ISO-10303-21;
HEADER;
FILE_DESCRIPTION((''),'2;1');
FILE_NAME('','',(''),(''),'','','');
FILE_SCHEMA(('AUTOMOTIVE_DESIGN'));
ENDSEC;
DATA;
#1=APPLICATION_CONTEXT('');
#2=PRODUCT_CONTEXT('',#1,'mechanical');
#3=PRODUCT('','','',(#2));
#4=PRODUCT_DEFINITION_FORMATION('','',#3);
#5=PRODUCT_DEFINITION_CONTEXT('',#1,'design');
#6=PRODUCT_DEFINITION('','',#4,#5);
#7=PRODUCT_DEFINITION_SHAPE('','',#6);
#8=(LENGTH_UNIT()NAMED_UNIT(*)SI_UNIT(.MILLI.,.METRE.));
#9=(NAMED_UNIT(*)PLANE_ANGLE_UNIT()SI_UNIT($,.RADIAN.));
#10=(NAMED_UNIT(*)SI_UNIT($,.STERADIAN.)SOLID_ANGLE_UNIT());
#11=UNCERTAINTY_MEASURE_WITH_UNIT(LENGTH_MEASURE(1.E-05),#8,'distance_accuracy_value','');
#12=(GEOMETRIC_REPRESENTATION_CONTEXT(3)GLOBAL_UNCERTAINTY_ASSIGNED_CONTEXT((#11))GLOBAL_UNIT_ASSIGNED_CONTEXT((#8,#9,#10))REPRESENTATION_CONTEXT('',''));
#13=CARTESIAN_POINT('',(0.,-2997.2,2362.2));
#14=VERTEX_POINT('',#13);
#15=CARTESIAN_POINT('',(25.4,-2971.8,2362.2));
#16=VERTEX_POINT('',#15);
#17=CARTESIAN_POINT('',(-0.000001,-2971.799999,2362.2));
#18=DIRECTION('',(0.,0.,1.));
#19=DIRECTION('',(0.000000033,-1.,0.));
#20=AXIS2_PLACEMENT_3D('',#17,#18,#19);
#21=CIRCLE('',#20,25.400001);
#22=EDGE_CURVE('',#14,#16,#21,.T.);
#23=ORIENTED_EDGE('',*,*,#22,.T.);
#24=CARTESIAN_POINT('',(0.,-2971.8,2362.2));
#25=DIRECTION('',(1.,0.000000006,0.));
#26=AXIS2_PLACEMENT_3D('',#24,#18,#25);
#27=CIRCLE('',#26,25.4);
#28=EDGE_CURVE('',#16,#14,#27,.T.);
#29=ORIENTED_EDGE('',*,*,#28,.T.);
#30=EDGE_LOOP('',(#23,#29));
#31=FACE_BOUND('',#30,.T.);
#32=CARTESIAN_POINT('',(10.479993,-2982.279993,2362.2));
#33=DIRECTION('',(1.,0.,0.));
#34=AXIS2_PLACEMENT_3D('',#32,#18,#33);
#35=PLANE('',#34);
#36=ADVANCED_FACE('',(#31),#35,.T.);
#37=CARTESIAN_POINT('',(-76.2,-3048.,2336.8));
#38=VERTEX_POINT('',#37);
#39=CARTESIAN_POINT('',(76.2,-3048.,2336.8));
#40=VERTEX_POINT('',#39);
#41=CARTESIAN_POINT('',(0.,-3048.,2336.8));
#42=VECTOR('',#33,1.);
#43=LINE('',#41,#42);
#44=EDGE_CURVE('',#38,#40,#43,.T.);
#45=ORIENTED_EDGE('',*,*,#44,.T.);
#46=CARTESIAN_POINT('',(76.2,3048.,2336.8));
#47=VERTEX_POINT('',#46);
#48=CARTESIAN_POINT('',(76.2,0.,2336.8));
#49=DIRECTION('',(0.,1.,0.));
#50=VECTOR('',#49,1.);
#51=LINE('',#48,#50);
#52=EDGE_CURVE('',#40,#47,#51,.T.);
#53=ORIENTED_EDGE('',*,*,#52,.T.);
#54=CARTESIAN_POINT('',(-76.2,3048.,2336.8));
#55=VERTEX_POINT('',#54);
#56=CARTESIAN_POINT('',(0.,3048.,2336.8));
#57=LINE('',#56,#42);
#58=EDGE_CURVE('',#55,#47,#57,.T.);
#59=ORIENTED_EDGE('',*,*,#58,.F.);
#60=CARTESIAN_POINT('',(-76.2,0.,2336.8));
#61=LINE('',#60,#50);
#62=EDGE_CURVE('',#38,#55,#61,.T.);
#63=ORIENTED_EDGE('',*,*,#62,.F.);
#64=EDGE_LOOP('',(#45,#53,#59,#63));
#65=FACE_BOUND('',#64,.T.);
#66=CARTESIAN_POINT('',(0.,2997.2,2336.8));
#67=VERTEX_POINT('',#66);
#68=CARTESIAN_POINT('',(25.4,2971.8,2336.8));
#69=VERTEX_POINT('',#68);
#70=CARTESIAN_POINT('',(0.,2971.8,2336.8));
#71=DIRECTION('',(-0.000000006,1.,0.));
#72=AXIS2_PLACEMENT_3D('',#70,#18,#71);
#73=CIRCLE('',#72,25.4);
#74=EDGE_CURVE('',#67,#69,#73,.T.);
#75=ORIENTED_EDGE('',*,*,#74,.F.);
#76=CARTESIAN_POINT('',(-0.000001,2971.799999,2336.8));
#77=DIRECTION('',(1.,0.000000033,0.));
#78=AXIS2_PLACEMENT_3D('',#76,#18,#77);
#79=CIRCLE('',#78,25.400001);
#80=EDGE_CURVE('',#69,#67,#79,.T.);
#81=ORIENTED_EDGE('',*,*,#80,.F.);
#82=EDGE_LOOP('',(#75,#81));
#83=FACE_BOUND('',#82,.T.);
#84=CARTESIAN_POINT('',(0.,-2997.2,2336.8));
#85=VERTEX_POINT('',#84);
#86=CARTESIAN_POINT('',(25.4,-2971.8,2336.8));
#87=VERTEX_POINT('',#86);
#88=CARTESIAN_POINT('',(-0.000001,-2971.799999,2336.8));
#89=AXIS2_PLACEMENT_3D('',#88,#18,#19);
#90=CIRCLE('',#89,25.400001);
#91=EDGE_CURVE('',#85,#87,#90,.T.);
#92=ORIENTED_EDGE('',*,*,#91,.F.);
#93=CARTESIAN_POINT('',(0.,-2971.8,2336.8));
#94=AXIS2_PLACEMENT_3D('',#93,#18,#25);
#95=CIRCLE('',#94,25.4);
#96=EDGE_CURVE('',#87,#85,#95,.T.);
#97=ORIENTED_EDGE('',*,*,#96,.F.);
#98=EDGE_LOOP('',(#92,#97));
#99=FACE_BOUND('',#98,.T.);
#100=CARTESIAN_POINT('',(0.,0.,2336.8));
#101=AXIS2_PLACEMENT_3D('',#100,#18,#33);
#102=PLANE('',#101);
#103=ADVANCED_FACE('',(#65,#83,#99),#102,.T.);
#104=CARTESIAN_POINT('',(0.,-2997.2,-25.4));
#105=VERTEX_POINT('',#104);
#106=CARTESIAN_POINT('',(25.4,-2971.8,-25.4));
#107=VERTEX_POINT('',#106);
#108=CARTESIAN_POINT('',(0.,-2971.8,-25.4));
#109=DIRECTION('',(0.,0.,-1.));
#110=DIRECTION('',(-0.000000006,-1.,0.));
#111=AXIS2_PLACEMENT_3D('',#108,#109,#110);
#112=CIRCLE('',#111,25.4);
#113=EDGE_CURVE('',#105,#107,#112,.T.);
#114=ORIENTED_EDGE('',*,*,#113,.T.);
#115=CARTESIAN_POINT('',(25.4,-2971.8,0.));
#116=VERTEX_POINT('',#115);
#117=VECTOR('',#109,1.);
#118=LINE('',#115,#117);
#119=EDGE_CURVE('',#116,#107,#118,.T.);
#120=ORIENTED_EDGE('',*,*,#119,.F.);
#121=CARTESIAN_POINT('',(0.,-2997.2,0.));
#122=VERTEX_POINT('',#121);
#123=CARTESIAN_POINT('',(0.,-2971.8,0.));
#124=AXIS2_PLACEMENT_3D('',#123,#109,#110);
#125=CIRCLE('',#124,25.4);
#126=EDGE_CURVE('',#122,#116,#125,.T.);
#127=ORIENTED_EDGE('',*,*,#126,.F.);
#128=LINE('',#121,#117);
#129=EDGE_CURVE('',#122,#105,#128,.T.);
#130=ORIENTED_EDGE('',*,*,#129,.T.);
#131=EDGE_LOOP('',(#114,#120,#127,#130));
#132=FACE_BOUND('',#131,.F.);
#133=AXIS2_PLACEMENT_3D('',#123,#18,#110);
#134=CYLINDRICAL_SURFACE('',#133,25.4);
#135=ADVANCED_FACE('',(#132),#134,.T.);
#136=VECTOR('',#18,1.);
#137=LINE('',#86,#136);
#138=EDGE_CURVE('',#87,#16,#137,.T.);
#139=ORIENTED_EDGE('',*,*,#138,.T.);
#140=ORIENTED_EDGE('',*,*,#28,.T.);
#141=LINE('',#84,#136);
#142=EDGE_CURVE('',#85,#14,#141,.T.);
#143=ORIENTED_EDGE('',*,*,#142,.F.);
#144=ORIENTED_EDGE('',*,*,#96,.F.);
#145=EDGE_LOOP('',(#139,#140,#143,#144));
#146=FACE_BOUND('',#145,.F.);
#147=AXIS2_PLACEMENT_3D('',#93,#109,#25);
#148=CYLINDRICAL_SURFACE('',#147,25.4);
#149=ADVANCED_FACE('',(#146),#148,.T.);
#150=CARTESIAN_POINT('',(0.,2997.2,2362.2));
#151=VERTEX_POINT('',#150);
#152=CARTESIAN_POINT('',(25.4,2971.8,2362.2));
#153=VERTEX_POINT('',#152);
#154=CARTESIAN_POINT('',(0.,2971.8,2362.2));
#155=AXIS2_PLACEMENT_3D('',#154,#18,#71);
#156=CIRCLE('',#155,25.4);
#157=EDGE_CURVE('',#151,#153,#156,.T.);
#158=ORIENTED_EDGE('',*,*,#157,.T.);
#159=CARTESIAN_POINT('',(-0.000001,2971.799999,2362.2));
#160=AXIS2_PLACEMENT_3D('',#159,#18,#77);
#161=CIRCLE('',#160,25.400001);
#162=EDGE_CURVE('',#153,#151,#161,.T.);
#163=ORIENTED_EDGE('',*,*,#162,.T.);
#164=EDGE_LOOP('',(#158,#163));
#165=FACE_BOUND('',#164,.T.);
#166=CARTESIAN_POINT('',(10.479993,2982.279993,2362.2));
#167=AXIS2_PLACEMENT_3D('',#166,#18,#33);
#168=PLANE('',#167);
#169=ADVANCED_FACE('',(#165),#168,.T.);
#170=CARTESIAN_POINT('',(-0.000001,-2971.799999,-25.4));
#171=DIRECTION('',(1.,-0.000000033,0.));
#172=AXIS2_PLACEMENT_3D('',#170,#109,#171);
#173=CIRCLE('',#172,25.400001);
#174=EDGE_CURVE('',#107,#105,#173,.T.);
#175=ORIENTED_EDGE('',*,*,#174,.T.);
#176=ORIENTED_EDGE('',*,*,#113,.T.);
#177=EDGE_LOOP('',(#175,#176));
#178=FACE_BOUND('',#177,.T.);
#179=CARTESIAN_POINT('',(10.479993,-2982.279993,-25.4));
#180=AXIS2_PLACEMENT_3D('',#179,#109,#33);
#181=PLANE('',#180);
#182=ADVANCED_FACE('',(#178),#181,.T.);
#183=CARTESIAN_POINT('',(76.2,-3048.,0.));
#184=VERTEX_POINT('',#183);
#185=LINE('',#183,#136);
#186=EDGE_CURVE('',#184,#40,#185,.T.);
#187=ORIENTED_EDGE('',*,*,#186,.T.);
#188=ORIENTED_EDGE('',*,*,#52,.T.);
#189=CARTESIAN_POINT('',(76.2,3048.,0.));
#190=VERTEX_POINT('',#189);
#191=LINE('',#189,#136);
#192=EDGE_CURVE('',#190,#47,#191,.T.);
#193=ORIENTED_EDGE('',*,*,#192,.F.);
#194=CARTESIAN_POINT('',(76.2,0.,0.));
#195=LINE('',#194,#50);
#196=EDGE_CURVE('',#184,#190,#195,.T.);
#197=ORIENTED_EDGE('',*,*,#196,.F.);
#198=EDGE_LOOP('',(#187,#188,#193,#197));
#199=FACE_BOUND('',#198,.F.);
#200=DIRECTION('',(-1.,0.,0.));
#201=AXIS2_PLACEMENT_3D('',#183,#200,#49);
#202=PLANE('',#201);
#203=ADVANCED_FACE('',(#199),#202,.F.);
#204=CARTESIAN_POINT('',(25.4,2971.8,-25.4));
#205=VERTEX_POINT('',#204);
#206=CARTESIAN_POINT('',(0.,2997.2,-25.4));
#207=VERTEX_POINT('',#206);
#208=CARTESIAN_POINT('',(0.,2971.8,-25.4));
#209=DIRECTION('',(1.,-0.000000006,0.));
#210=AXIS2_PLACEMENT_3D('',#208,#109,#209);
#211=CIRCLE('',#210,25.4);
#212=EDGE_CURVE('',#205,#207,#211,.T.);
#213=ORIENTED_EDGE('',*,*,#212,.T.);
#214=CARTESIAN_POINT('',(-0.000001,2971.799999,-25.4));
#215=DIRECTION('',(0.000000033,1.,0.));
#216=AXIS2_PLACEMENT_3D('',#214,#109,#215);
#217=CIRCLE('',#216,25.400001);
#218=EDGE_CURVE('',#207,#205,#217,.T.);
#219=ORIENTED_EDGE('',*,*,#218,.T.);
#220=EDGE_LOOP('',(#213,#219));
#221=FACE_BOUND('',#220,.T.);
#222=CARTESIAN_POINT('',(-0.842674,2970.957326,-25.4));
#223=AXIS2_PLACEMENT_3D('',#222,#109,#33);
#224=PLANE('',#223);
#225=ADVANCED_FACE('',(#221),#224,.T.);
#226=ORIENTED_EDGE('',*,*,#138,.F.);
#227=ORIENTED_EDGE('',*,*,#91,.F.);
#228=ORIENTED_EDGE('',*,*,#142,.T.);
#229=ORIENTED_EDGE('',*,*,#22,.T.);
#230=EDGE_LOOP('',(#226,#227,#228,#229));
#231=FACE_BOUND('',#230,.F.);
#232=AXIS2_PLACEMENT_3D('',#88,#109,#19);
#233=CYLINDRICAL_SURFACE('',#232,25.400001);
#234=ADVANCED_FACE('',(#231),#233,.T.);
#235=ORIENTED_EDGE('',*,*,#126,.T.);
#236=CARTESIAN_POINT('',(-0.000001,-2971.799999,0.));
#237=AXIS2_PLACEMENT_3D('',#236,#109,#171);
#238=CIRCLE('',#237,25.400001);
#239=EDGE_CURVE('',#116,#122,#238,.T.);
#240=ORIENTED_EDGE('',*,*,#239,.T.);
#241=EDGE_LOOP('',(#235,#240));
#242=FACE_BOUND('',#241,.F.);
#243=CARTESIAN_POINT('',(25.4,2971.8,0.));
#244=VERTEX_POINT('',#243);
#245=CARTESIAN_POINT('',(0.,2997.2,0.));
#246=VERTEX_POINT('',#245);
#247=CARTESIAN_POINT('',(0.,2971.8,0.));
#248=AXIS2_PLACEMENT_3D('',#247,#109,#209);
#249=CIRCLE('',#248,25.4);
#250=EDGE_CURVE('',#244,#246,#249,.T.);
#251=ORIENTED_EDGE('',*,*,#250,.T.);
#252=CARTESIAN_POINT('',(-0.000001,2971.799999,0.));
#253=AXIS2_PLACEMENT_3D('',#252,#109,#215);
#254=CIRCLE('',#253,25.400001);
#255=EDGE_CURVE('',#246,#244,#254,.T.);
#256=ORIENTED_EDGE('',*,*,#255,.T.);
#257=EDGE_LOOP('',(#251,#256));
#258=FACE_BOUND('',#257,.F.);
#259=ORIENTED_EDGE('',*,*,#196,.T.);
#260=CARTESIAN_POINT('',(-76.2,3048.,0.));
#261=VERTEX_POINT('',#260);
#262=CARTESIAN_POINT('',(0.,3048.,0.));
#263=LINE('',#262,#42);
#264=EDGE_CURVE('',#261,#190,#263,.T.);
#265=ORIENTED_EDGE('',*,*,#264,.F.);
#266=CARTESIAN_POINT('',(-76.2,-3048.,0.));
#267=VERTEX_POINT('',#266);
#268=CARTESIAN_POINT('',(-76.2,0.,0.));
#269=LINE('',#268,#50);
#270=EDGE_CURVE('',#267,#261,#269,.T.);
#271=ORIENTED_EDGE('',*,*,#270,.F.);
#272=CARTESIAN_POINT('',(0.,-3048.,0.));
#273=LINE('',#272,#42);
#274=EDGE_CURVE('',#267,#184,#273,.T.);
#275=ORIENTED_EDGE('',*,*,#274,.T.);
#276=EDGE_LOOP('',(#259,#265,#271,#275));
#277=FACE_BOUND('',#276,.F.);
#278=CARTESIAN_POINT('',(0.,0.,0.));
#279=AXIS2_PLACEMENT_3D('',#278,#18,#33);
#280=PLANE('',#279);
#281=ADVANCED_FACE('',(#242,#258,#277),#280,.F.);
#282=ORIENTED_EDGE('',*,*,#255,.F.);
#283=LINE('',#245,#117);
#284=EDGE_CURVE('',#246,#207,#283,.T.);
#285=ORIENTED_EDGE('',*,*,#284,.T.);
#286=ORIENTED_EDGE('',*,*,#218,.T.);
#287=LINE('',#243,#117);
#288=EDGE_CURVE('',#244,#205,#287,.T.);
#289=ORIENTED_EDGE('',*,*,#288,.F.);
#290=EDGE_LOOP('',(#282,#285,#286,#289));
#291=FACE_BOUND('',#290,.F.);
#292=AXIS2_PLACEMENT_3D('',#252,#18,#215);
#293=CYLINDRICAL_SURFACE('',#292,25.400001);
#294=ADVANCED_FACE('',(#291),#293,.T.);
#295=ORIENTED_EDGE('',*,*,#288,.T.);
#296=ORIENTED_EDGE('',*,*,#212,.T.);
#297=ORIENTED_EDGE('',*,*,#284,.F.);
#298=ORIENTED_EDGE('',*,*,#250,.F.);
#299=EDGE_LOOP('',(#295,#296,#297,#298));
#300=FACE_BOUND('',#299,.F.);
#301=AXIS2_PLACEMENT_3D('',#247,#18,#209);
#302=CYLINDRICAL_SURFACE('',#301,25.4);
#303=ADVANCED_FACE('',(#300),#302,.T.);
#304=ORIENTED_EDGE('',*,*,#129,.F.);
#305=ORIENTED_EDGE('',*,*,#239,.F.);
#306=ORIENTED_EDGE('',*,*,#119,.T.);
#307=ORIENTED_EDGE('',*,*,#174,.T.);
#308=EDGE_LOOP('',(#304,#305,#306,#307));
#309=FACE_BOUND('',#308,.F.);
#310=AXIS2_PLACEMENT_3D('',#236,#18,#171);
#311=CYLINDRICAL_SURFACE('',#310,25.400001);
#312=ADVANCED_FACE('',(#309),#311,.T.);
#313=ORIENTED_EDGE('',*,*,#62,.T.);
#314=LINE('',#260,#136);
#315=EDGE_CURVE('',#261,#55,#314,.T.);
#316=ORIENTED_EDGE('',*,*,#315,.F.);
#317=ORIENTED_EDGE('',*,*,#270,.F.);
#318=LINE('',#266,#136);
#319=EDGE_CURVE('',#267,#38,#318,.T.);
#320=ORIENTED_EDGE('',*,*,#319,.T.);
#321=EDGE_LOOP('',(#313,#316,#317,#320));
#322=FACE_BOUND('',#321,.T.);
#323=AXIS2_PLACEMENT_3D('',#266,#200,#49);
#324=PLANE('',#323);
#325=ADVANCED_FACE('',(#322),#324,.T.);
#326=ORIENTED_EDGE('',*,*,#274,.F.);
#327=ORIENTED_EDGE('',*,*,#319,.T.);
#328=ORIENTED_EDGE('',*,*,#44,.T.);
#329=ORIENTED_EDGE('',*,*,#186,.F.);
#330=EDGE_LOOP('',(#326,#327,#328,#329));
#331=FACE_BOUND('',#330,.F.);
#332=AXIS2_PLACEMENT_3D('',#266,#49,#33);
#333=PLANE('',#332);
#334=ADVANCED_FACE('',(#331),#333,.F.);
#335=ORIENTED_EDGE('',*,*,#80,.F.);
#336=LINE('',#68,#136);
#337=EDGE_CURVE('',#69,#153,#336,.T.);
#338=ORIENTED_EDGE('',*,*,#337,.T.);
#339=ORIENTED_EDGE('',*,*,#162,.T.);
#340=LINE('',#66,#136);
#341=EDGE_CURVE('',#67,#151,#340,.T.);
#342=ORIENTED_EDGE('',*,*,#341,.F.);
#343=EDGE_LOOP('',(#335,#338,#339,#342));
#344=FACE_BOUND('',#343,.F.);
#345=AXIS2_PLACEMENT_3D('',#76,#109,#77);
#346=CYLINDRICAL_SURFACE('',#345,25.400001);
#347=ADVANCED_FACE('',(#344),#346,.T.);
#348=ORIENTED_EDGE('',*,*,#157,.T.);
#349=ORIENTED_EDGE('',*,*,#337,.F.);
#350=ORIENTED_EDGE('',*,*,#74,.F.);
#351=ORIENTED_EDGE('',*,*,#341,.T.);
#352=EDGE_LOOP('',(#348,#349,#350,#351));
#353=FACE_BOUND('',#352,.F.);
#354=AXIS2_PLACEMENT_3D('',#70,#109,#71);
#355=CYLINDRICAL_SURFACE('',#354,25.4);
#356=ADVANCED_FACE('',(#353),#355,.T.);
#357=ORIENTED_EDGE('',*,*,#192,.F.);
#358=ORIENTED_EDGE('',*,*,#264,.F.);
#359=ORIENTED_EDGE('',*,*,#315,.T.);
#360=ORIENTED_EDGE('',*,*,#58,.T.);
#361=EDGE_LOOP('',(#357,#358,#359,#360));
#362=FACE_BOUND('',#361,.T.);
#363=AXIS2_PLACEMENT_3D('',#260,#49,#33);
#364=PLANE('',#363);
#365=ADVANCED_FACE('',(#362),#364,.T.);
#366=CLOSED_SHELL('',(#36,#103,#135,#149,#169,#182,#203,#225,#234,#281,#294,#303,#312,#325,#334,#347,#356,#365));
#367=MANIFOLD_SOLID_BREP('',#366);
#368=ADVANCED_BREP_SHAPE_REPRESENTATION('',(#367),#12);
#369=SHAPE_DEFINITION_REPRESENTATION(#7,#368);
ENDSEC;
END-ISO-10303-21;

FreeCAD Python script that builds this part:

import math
import FreeCAD as App
import Part
import Sketcher
from FreeCAD import Vector
Q = App.Units.Quantity


def add_polygon(sketch, points):
    """Adds a closed chain of lines whose ends are joined by coincident constraints."""
    first, n = sketch.GeometryCount, len(points)
    for a, b in zip(points, points[1:] + points[:1]):
        sketch.addGeometry(Part.LineSegment(App.Vector(*a, 0), App.Vector(*b, 0)), False)
    for i in range(n):
        sketch.addConstraint(Sketcher.Constraint("Coincident", first + i, 2, first + (i + 1) % n, 1))

doc = App.newDocument("Part")
body = doc.addObject("PartDesign::Body", "Body")

# Sketch on XY plane
sketch1 = doc.addObject("Sketcher::SketchObject", "Sketch")
body.addObject(sketch1)
sketch1.AttachmentSupport = (doc.XY_Plane, [""])
sketch1.MapMode = "FlatFace"
add_polygon(sketch1, [(-76.2, 3048), (-76.2, -3048), (76.2, -3048), (76.2, 3048)])  # lines 0-3
sketch1.addConstraint([
    Sketcher.Constraint("Vertical", 0),
    Sketcher.Constraint("Horizontal", 1),
    Sketcher.Constraint("Vertical", 2),
    Sketcher.Constraint("Horizontal", 3),
    Sketcher.Constraint("Symmetric", 0, 2, 2, 2, -1, 1),
    Sketcher.Constraint("DistanceX", 1, 1, 1, 2, Q("6 in")),
    Sketcher.Constraint("DistanceY", 0, 2, 0, 1, Q("240 in")),
])
pad1 = doc.addObject("PartDesign::Pad", "Pad")
body.addObject(pad1)
pad1.Profile = sketch1
pad1.Length = Q("92 in")

# Sketch on XY plane
sketch2 = doc.addObject("Sketcher::SketchObject", "Sketch001")
body.addObject(sketch2)
sketch2.AttachmentSupport = (doc.XY_Plane, [""])
sketch2.MapMode = "FlatFace"
sketch2.addGeometry([
    Part.ArcOfCircle(Part.Circle(Vector(-0.000001, -2971.799999, 0), Vector(0, 0, 1), 25.400001), math.radians(-89.999998), math.radians(-0.000002)),
    Part.ArcOfCircle(Part.Circle(Vector(0, -2971.8, 0), Vector(0, 0, 1), 25.4), math.radians(0), math.radians(270)),
    Part.ArcOfCircle(Part.Circle(Vector(0, 2971.8, 0), Vector(0, 0, 1), 25.4), math.radians(90), math.radians(360)),
    Part.ArcOfCircle(Part.Circle(Vector(-0.000001, 2971.799999, 0), Vector(0, 0, 1), 25.400001), math.radians(0.000002), math.radians(89.999998)),
], False)
sketch2.addConstraint([
    Sketcher.Constraint("Tangent", 0, 1, 1, 2),
    Sketcher.Constraint("Coincident", 1, 1, 0, 2),
    Sketcher.Constraint("Tangent", 2, 1, 3, 2),
    Sketcher.Constraint("Coincident", 3, 1, 2, 2),
    Sketcher.Constraint("Equal", 1, 2),
    Sketcher.Constraint("Symmetric", 0, 3, 2, 3, -1, 1),
    Sketcher.Constraint("Symmetric", 1, 1, 3, 1, -1),
    Sketcher.Constraint("PointOnObject", 0, 1, -2),
    Sketcher.Constraint("PointOnObject", 2, 1, -2),
    Sketcher.Constraint("Horizontal", 0, 3, 1, 1),
    Sketcher.Constraint("Radius", 0, Q("1 in")),
    Sketcher.Constraint("DistanceY", 0, 3, -1, 1, Q("117 in")),
])
pad2 = doc.addObject("PartDesign::Pad", "Pad001")
body.addObject(pad2)
pad2.Profile = sketch2
pad2.Length = Q("1 in")
pad2.Reversed = True

# Sketch on XY plane
sketch3 = doc.addObject("Sketcher::SketchObject", "Sketch002")
body.addObject(sketch3)
sketch3.AttachmentSupport = (doc.XY_Plane, [""])
sketch3.MapMode = "FlatFace"
sketch3.AttachmentOffset = App.Placement(Vector(0, 0, 92 * 25.4), App.Rotation())
sketch3.addGeometry([
    Part.ArcOfCircle(Part.Circle(Vector(-0.000001, 2971.799999, 0), Vector(0, 0, 1), 25.400001), math.radians(0.000002), math.radians(89.999998)),
    Part.ArcOfCircle(Part.Circle(Vector(0, 2971.8, 0), Vector(0, 0, 1), 25.4), math.radians(90), math.radians(360)),
    Part.ArcOfCircle(Part.Circle(Vector(-0.000001, -2971.799999, 0), Vector(0, 0, 1), 25.400001), math.radians(-89.999998), math.radians(-0.000002)),
    Part.ArcOfCircle(Part.Circle(Vector(0, -2971.8, 0), Vector(0, 0, 1), 25.4), math.radians(0), math.radians(270)),
], False)
sketch3.addConstraint([
    Sketcher.Constraint("Tangent", 0, 1, 1, 2),
    Sketcher.Constraint("Coincident", 1, 1, 0, 2),
    Sketcher.Constraint("Tangent", 2, 1, 3, 2),
    Sketcher.Constraint("Coincident", 3, 1, 2, 2),
    Sketcher.Constraint("Equal", 1, 2),
    Sketcher.Constraint("Symmetric", 0, 3, 2, 3, -1, 1),
    Sketcher.Constraint("Symmetric", 0, 1, 3, 1, -1),
    Sketcher.Constraint("PointOnObject", 1, 1, -2),
    Sketcher.Constraint("PointOnObject", 2, 1, -2),
    Sketcher.Constraint("Horizontal", 1, 3, 0, 1),
    Sketcher.Constraint("Radius", 0, Q("1 in")),
    Sketcher.Constraint("DistanceY", -1, 1, 0, 3, Q("117 in")),
])
pad3 = doc.addObject("PartDesign::Pad", "Pad002")
body.addObject(pad3)
pad3.Profile = sketch3
pad3.Length = Q("1 in")

doc.recompute()
